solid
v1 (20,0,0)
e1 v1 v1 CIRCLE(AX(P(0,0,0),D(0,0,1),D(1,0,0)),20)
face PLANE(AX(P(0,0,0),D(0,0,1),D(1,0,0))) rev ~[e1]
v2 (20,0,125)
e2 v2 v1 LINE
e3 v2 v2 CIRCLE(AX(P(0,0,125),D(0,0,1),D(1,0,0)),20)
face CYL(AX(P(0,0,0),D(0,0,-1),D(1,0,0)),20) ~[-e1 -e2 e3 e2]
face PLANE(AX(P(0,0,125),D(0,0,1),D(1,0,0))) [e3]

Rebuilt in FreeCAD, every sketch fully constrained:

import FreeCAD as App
import Part
import Sketcher
from FreeCAD import Vector
Q = App.Units.Quantity

doc = App.newDocument("Part")
body = doc.addObject("PartDesign::Body", "Body")

# Sketch on XY plane
sketch1 = body.newObject("Sketcher::SketchObject", "Sketch")
sketch1.AttachmentSupport = (doc.getObject("XY_Plane"), [""])
sketch1.MapMode = "FlatFace"
sketch1.addGeometry(Part.Circle(Vector(0, 0, 0), Vector(0, 0, 1), 20), False)
sketch1.addConstraint([
    Sketcher.Constraint("Coincident", 0, 3, -1, 1),
    Sketcher.Constraint("Diameter", 0, Q("40 mm")),
])
pad1 = body.newObject("PartDesign::Pad", "Pad")
pad1.Profile = sketch1
pad1.Length = 50

# Sketch on XY plane
sketch2 = body.newObject("Sketcher::SketchObject", "Sketch001")
sketch2.AttachmentSupport = (doc.getObject("XY_Plane"), [""])
sketch2.MapMode = "FlatFace"
sketch2.AttachmentOffset = App.Placement(Vector(0, 0, 50), App.Rotation())
sketch2.addGeometry(Part.Circle(Vector(0, 0, 0), Vector(0, 0, 1), 20), False)
sketch2.addConstraint([
    Sketcher.Constraint("Coincident", 0, 3, -1, 1),
    Sketcher.Constraint("Diameter", 0, Q("40 mm")),
])
pad2 = body.newObject("PartDesign::Pad", "Pad001")
pad2.Profile = sketch2
pad2.Length = 75

doc.recompute()
